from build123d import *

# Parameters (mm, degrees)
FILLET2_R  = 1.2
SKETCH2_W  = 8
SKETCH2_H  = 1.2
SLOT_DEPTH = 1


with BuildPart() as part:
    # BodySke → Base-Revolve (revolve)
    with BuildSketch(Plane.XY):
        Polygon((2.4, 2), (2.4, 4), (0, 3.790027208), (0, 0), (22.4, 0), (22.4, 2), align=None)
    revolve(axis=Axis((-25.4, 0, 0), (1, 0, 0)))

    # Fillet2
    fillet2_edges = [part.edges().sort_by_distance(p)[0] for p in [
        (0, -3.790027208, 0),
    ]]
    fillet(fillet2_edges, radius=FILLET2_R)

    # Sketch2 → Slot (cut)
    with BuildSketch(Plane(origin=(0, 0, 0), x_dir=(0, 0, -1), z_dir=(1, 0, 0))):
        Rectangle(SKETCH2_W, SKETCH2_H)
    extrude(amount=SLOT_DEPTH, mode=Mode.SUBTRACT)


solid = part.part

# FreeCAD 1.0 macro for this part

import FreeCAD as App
import Part
import Sketcher
Q = App.Units.Quantity


def edges_at(feature, points):
    """Names of the edges that pass closest to the given points."""
    edges = feature.Shape.Edges
    near = lambda p: min(range(len(edges)), key=lambda i: edges[i].distToShape(Part.Vertex(*p))[0])
    return sorted({f"Edge{near(p) + 1}" for p in points})

doc = App.newDocument("Part")
body = doc.addObject("PartDesign::Body", "Body")

# Sketch on XY plane
sketch1 = doc.addObject("Sketcher::SketchObject", "Sketch")
body.addObject(sketch1)
sketch1.AttachmentSupport = (doc.XY_Plane, [""])
sketch1.MapMode = "FlatFace"
sketch1.addGeometry([
    Part.LineSegment(App.Vector(2.4, 2, 0), App.Vector(2.4, 4, 0)),  # 0
    Part.LineSegment(App.Vector(2.4, 4, 0), App.Vector(0, 3.8, 0)),  # 1
    Part.LineSegment(App.Vector(0, 3.8, 0), App.Vector(0, 0, 0)),  # 2
    Part.LineSegment(App.Vector(0, 0, 0), App.Vector(22.4, 0, 0)),  # 3
    Part.LineSegment(App.Vector(22.4, 0, 0), App.Vector(22.4, 2, 0)),  # 4
    Part.LineSegment(App.Vector(22.4, 2, 0), App.Vector(2.4, 2, 0)),  # 5
], False)
sketch1.addConstraint([
    Sketcher.Constraint("Coincident", 0, 2, 1, 1),
    Sketcher.Constraint("Coincident", 1, 2, 2, 1),
    Sketcher.Constraint("Coincident", 2, 2, 3, 1),
    Sketcher.Constraint("Coincident", 3, 2, 4, 1),
    Sketcher.Constraint("Coincident", 4, 2, 5, 1),
    Sketcher.Constraint("Coincident", 5, 2, 0, 1),
    Sketcher.Constraint("Vertical", 0),
    Sketcher.Constraint("Vertical", 2),
    Sketcher.Constraint("Horizontal", 3),
    Sketcher.Constraint("Vertical", 4),
    Sketcher.Constraint("Horizontal", 5),
    Sketcher.Constraint("Coincident", 2, 2, -1, 1),
    Sketcher.Constraint("Equal", 0, 4),
    Sketcher.Constraint("DistanceX", 5, 2, 5, 1, Q("20 mm")),
    Sketcher.Constraint("DistanceY", 0, 1, 0, 2, Q("2 mm")),
    Sketcher.Constraint("Angle", 1, Q("-175 deg")),
    Sketcher.Constraint("DistanceX", 3, 1, 3, 2, Q("22.4 mm")),
])
revolution = doc.addObject("PartDesign::Revolution", "Revolution")
body.addObject(revolution)
revolution.Profile = sketch1
revolution.ReferenceAxis = (sketch1, ["H_Axis"])
revolution.Angle = 360
doc.recompute()

fillet = doc.addObject("PartDesign::Fillet", "Fillet")
body.addObject(fillet)
fillet.Base = (revolution, edges_at(revolution, [(0, -3.79, 0)]))
fillet.Radius = 1.2

# Sketch on YZ plane
sketch2 = doc.addObject("Sketcher::SketchObject", "Sketch001")
body.addObject(sketch2)
sketch2.AttachmentSupport = (doc.YZ_Plane, [""])
sketch2.MapMode = "FlatFace"
sketch2.addGeometry([
    Part.LineSegment(App.Vector(0.6, 4, 0), App.Vector(-0.6, 4, 0)),
    Part.LineSegment(App.Vector(-0.6, 4, 0), App.Vector(-0.6, -4, 0)),
    Part.LineSegment(App.Vector(-0.6, -4, 0), App.Vector(0.6, -4, 0)),
    Part.LineSegment(App.Vector(0.6, -4, 0), App.Vector(0.6, 4, 0)),
], False)
sketch2.addConstraint([
    Sketcher.Constraint("Coincident", 0, 2, 1, 1),
    Sketcher.Constraint("Coincident", 1, 2, 2, 1),
    Sketcher.Constraint("Coincident", 2, 2, 3, 1),
    Sketcher.Constraint("Coincident", 3, 2, 0, 1),
    Sketcher.Constraint("Horizontal", 0),
    Sketcher.Constraint("Vertical", 1),
    Sketcher.Constraint("Horizontal", 2),
    Sketcher.Constraint("Vertical", 3),
    Sketcher.Constraint("Symmetric", 0, 2, 2, 2, -1, 1),
    Sketcher.Constraint("DistanceY", 1, 2, 1, 1, Q("8 mm")),
    Sketcher.Constraint("DistanceX", 0, 2, 0, 1, Q("1.2 mm")),
])
pocket1 = doc.addObject("PartDesign::Pocket", "Pocket")
body.addObject(pocket1)
pocket1.Profile = sketch2
pocket1.Length = 1
pocket1.Reversed = True

doc.recompute()
